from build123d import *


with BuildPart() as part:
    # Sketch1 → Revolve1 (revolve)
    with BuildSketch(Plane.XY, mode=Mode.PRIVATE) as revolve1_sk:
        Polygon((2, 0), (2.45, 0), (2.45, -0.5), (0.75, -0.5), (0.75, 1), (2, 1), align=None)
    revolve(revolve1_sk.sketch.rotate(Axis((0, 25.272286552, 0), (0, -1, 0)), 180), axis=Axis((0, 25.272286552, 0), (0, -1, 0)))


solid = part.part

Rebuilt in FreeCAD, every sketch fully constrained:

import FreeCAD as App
import Part
import Sketcher
Q = App.Units.Quantity


def add_polygon(sketch, points):
    """Adds a closed chain of lines whose ends are joined by coincident constraints."""
    first, n = sketch.GeometryCount, len(points)
    for a, b in zip(points, points[1:] + points[:1]):
        sketch.addGeometry(Part.LineSegment(App.Vector(*a, 0), App.Vector(*b, 0)), False)
    for i in range(n):
        sketch.addConstraint(Sketcher.Constraint("Coincident", first + i, 2, first + (i + 1) % n, 1))

doc = App.newDocument("Part")
body = doc.addObject("PartDesign::Body", "Body")

# Sketch on XY plane
sketch1 = body.newObject("Sketcher::SketchObject", "Sketch")
sketch1.AttachmentSupport = (doc.getObject("XY_Plane"), [""])
sketch1.MapMode = "FlatFace"
add_polygon(sketch1, [(2.45, 0), (2, 0), (2, 1), (0.75, 1), (0.75, -0.5), (2.45, -0.5)])  # lines 0-5
sketch1.addConstraint(Sketcher.Constraint("Horizontal", 0))
sketch1.addConstraint(Sketcher.Constraint("Vertical", 1))
sketch1.addConstraint(Sketcher.Constraint("Horizontal", 2))
sketch1.addConstraint(Sketcher.Constraint("Vertical", 3))
sketch1.addConstraint(Sketcher.Constraint("Horizontal", 4))
sketch1.addConstraint(Sketcher.Constraint("Vertical", 5))
sketch1.addConstraint(Sketcher.Constraint("PointOnObject", 0, 2, -1))
sketch1.addConstraint(Sketcher.Constraint("DistanceY", 1, 1, 1, 2, Q("1 mm")))
sketch1.addConstraint(Sketcher.Constraint("DistanceX", 4, 1, 4, 2, Q("1.7 mm")))
sketch1.addConstraint(Sketcher.Constraint("DistanceY", 3, 2, 3, 1, Q("1.5 mm")))
sketch1.addConstraint(Sketcher.Constraint("DistanceX", -1, 1, 0, 2, Q("2 mm")))
sketch1.addConstraint(Sketcher.Constraint("DistanceX", 0, 2, 0, 1, Q("0.45 mm")))
revolution = body.newObject("PartDesign::Revolution", "Revolution")
revolution.Profile = sketch1
revolution.ReferenceAxis = (sketch1, ["V_Axis"])
revolution.Angle = 360

doc.recompute()
